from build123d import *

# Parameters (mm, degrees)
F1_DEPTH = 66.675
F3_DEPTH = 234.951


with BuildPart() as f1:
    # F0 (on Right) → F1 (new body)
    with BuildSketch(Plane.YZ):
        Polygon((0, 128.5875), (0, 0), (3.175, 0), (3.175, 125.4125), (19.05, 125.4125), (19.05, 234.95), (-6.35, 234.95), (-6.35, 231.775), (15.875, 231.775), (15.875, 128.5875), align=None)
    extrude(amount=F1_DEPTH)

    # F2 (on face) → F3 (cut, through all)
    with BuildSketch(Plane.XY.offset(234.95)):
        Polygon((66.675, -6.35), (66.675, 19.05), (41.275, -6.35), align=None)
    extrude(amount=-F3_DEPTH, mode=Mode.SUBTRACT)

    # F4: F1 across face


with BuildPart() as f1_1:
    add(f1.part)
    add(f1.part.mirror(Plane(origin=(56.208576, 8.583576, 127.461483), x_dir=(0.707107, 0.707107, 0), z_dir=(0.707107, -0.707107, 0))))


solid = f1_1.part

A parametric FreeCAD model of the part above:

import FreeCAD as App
import Part
import Sketcher
from FreeCAD import Vector
Q = App.Units.Quantity

doc = App.newDocument("Part")
body = doc.addObject("PartDesign::Body", "Body")

sketch1 = body.newObject("Sketcher::SketchObject", "Sketch")
sketch1.AttachmentSupport = (doc.getObject("YZ_Plane"), [""])
sketch1.MapMode = "FlatFace"
sketch1.addGeometry([
    Part.LineSegment(Vector(0, 128.5875, 0), Vector(0, 0, 0)),
    Part.LineSegment(Vector(0, 0, 0), Vector(3.175, 0, 0)),
    Part.LineSegment(Vector(3.175, 0, 0), Vector(3.175, 125.4125, 0)),
    Part.LineSegment(Vector(3.175, 125.4125, 0), Vector(19.05, 125.4125, 0)),
    Part.LineSegment(Vector(19.05, 125.4125, 0), Vector(19.05, 234.95, 0)),
    Part.LineSegment(Vector(19.05, 234.95, 0), Vector(-6.35, 234.95, 0)),
    Part.LineSegment(Vector(-6.35, 234.95, 0), Vector(-6.35, 231.775, 0)),
    Part.LineSegment(Vector(-6.35, 231.775, 0), Vector(15.875, 231.775, 0)),
    Part.LineSegment(Vector(15.875, 231.775, 0), Vector(15.875, 128.5875, 0)),
    Part.LineSegment(Vector(15.875, 128.5875, 0), Vector(0, 128.5875, 0)),
], False)
sketch1.addConstraint([
    Sketcher.Constraint("Coincident", 0, 2, 1, 1),
    Sketcher.Constraint("Coincident", 1, 2, 2, 1),
    Sketcher.Constraint("Coincident", 2, 2, 3, 1),
    Sketcher.Constraint("Coincident", 3, 2, 4, 1),
    Sketcher.Constraint("Coincident", 4, 2, 5, 1),
    Sketcher.Constraint("Coincident", 5, 2, 6, 1),
    Sketcher.Constraint("Coincident", 6, 2, 7, 1),
    Sketcher.Constraint("Coincident", 7, 2, 8, 1),
    Sketcher.Constraint("Coincident", 8, 2, 9, 1),
    Sketcher.Constraint("Coincident", 9, 2, 0, 1),
    Sketcher.Constraint("Vertical", 0),
    Sketcher.Constraint("Horizontal", 1),
    Sketcher.Constraint("Vertical", 2),
    Sketcher.Constraint("Horizontal", 3),
    Sketcher.Constraint("Vertical", 4),
    Sketcher.Constraint("Horizontal", 5),
    Sketcher.Constraint("Vertical", 6),
    Sketcher.Constraint("Horizontal", 7),
    Sketcher.Constraint("Vertical", 8),
    Sketcher.Constraint("Horizontal", 9),
    Sketcher.Constraint("Coincident", 0, 2, -1, 1),
    Sketcher.Constraint("Equal", 3, 9),
    Sketcher.Constraint("Equal", 1, 6),
    Sketcher.Constraint("DistanceX", 5, 2, 5, 1, Q("1 in")),
    Sketcher.Constraint("DistanceX", 2, 2, 7, 2, Q("0.5 in")),
    Sketcher.Constraint("DistanceX", 1, 1, 1, 2, Q("0.125 in")),
    Sketcher.Constraint("DistanceY", 0, 2, 0, 1, Q("5.0625 in")),
    Sketcher.Constraint("DistanceY", 2, 1, 2, 2, Q("4.9375 in")),
    Sketcher.Constraint("DistanceY", 4, 1, 4, 2, Q("4.3125 in")),
])
pad1 = body.newObject("PartDesign::Pad", "Pad")
pad1.Profile = sketch1
pad1.Length = Q("2.625 in")

sketch2 = body.newObject("Sketcher::SketchObject", "Sketch001")
sketch2.AttachmentSupport = (doc.getObject("XY_Plane"), [""])
sketch2.MapMode = "FlatFace"
sketch2.AttachmentOffset = App.Placement(Vector(0, 0, 9.25 * 25.4), App.Rotation())
sketch2.addGeometry([
    Part.LineSegment(Vector(66.675, -6.35, 0), Vector(66.675, 19.05, 0)),
    Part.LineSegment(Vector(66.675, 19.05, 0), Vector(41.275, -6.35, 0)),
    Part.LineSegment(Vector(41.275, -6.35, 0), Vector(66.675, -6.35, 0)),
], False)
sketch2.addConstraint([
    Sketcher.Constraint("Coincident", 0, 2, 1, 1),
    Sketcher.Constraint("Coincident", 1, 2, 2, 1),
    Sketcher.Constraint("Coincident", 2, 2, 0, 1),
    Sketcher.Constraint("Vertical", 0),
    Sketcher.Constraint("Horizontal", 2),
    Sketcher.Constraint("Equal", 2, 0),
    Sketcher.Constraint("DistanceX", 2, 1, 2, 2, Q("1 in")),
    Sketcher.Constraint("DistanceY", -1, 1, 0, 2, Q("0.75 in")),
    Sketcher.Constraint("DistanceX", -1, 1, 0, 2, Q("2.625 in")),
])
pocket1 = body.newObject("PartDesign::Pocket", "Pocket")
pocket1.Profile = sketch2
pocket1.Type = "ThroughAll"
body2 = doc.addObject("PartDesign::Body", "Body001")
doc.recompute()

body2.BaseFeature = body
doc.recompute()

mirroring = doc.addObject("Part::Mirroring", "Mirroring")
mirroring.Source = body
mirroring.Base = Vector(56.208576, 8.583576, 127.461483)
mirroring.Normal = Vector(0.707106781, -0.707106781, 0)
body3 = doc.addObject("PartDesign::Body", "Body002")
body3.BaseFeature = mirroring
boolean = body2.newObject("PartDesign::Boolean", "Boolean")
boolean.Type = "Fuse"
boolean.addObjects([body3])
doc.recompute()
mirroring.Visibility = False

doc.recompute()
